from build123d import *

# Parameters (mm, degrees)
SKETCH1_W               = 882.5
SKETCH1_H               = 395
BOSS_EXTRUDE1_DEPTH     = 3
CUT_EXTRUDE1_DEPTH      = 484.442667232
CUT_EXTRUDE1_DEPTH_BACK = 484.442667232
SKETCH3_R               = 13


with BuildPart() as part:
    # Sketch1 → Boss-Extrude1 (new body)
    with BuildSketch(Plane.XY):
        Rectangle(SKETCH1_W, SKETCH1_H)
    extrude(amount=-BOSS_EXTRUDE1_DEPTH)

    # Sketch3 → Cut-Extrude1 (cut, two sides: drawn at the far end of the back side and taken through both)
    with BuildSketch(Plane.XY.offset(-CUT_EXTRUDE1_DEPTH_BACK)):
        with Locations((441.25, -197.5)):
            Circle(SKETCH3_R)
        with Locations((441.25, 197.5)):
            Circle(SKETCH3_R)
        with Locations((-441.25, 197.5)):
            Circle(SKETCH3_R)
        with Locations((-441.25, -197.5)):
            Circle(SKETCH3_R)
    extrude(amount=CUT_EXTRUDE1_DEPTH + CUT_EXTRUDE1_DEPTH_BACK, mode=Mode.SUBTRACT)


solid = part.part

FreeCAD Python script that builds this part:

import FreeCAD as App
import Part
import Sketcher

V = App.Vector

doc = App.newDocument("Part")
params = doc.addObject("Spreadsheet::Sheet", "Params")
for row, (alias, value) in enumerate([
    ("sketch1_height", "395 mm"),
    ("sketch1_width", "882.5 mm"),
    ("pad1_length", "3 mm"),
    ("sketch2_diameter", "26 mm"),
], start=1):
    params.set(f"A{row}", alias)
    params.set(f"B{row}", "=" + value)
    params.setAlias(f"B{row}", alias)

body = doc.addObject("PartDesign::Body", "Body")

sketch1 = body.newObject("Sketcher::SketchObject", "Sketch")
sketch1.AttachmentSupport = (doc.getObject("XY_Plane"), [""])
sketch1.MapMode = "FlatFace"
sketch1.addGeometry(Part.LineSegment(V(-441.25, 197.5, 0), V(-441.25, -197.5, 0)), False)
sketch1.addGeometry(Part.LineSegment(V(-441.25, -197.5, 0), V(441.25, -197.5, 0)), False)
sketch1.addGeometry(Part.LineSegment(V(441.25, -197.5, 0), V(441.25, 197.5, 0)), False)
sketch1.addGeometry(Part.LineSegment(V(441.25, 197.5, 0), V(-441.25, 197.5, 0)), False)
sketch1.addConstraint(Sketcher.Constraint("Coincident", 0, 2, 1, 1))
sketch1.addConstraint(Sketcher.Constraint("Coincident", 1, 2, 2, 1))
sketch1.addConstraint(Sketcher.Constraint("Coincident", 2, 2, 3, 1))
sketch1.addConstraint(Sketcher.Constraint("Coincident", 3, 2, 0, 1))
sketch1.addConstraint(Sketcher.Constraint("Vertical", 0))
sketch1.addConstraint(Sketcher.Constraint("Horizontal", 1))
sketch1.addConstraint(Sketcher.Constraint("Vertical", 2))
sketch1.addConstraint(Sketcher.Constraint("Horizontal", 3))
sketch1.addConstraint(Sketcher.Constraint("Symmetric", 0, 2, 2, 2, -1, 1))
sketch1.addConstraint(Sketcher.Constraint("DistanceY", 0, 2, 0, 1, 395.0))
sketch1.addConstraint(Sketcher.Constraint("DistanceX", 1, 1, 1, 2, 882.5))
sketch1.setExpression("Constraints[9]", "Params.sketch1_height")
sketch1.setExpression("Constraints[10]", "Params.sketch1_width")
pad1 = body.newObject("PartDesign::Pad", "Pad")
pad1.Profile = sketch1
pad1.setExpression("Length", "Params.pad1_length")
pad1.Reversed = True

sketch2 = body.newObject("Sketcher::SketchObject", "Sketch001")
sketch2.AttachmentSupport = (doc.getObject("XY_Plane"), [""])
sketch2.MapMode = "FlatFace"
sketch2.addGeometry(Part.Circle(V(441.25, -197.5, 0), V(0, 0, 1), 13), False)
sketch2.addGeometry(Part.Circle(V(441.25, 197.5, 0), V(0, 0, 1), 13), False)
sketch2.addGeometry(Part.Circle(V(-441.25, 197.5, 0), V(0, 0, 1), 13), False)
sketch2.addGeometry(Part.Circle(V(-441.25, -197.5, 0), V(0, 0, 1), 13), False)
sketch2.addConstraint(Sketcher.Constraint("Equal", 0, 1))
sketch2.addConstraint(Sketcher.Constraint("Equal", 1, 2))
sketch2.addConstraint(Sketcher.Constraint("Equal", 2, 3))
sketch2.addConstraint(Sketcher.Constraint("Symmetric", 0, 3, 2, 3, -1, 1))
sketch2.addConstraint(Sketcher.Constraint("Symmetric", 1, 3, 3, 3, -1, 1))
sketch2.addConstraint(Sketcher.Constraint("Symmetric", 1, 3, 2, 3, -2))
sketch2.addConstraint(Sketcher.Constraint("Diameter", 0, 26.0))
sketch2.addConstraint(Sketcher.Constraint("DistanceY", 0, 3, 1, 3, 395.0))
sketch2.addConstraint(Sketcher.Constraint("DistanceX", 2, 3, 1, 3, 882.5))
sketch2.setExpression("Constraints[6]", "Params.sketch2_diameter")
pocket1 = body.newObject("PartDesign::Pocket", "Pocket")
pocket1.Profile = sketch2
pocket1.Type = "ThroughAll"
pocket1.Midplane = True

doc.recompute()
